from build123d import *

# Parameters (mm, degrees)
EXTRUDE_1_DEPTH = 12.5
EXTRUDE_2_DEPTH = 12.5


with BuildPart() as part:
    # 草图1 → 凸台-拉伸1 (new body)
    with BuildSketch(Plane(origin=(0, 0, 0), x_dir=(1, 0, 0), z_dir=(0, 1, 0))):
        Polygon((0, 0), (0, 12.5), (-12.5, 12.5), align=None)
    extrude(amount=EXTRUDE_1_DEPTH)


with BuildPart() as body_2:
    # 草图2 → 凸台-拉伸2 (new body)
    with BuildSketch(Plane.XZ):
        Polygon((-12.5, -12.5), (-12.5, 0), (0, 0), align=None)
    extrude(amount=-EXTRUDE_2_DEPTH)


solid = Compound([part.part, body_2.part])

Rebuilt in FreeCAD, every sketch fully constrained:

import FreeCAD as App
import Part
import Sketcher
from FreeCAD import Vector
Q = App.Units.Quantity


def add_polygon(sketch, points):
    """Adds a closed chain of lines whose ends are joined by coincident constraints."""
    first, n = sketch.GeometryCount, len(points)
    for a, b in zip(points, points[1:] + points[:1]):
        sketch.addGeometry(Part.LineSegment(App.Vector(*a, 0), App.Vector(*b, 0)), False)
    for i in range(n):
        sketch.addConstraint(Sketcher.Constraint("Coincident", first + i, 2, first + (i + 1) % n, 1))

doc = App.newDocument("Part")
body = doc.addObject("PartDesign::Body", "Body")

sketch1 = body.newObject("Sketcher::SketchObject", "Sketch")
sketch1.AttachmentSupport = (doc.getObject("XZ_Plane"), [""])
sketch1.MapMode = "FlatFace"
add_polygon(sketch1, [(0, 0), (0, -12), (-12, -12)])
sketch1.addConstraint(Sketcher.Constraint("Vertical", 0))
sketch1.addConstraint(Sketcher.Constraint("Horizontal", 1))
sketch1.addConstraint(Sketcher.Constraint("Coincident", 2, 2, -1, 1))
sketch1.addConstraint(Sketcher.Constraint("Equal", 1, 0))
sketch1.addConstraint(Sketcher.Constraint("DistanceX", 1, 2, 1, 1, Q("12.5 mm")))
pad1 = body.newObject("PartDesign::Pad", "Pad")
pad1.Profile = sketch1
pad1.Length = 12.5
pad1.Reversed = True
body2 = doc.addObject("PartDesign::Body", "Body001")

sketch2 = body2.newObject("Sketcher::SketchObject", "Sketch001")
sketch2.AttachmentSupport = (doc.getObject("XZ_Plane001"), [""])
sketch2.MapMode = "FlatFace"
add_polygon(sketch2, [(-12, 0), (-12, -12), (0, 0)])
sketch2.addConstraint(Sketcher.Constraint("Vertical", 0))
sketch2.addConstraint(Sketcher.Constraint("Horizontal", 2))
sketch2.addConstraint(Sketcher.Constraint("Coincident", 1, 2, -1, 1))
sketch2.addConstraint(Sketcher.Constraint("Equal", 2, 0))
sketch2.addConstraint(Sketcher.Constraint("DistanceX", 2, 2, 2, 1, Q("12.5 mm")))
pad2 = body2.newObject("PartDesign::Pad", "Pad001")
pad2.Profile = sketch2
pad2.Length = 12.5
pad2.Reversed = True

doc.recompute()
